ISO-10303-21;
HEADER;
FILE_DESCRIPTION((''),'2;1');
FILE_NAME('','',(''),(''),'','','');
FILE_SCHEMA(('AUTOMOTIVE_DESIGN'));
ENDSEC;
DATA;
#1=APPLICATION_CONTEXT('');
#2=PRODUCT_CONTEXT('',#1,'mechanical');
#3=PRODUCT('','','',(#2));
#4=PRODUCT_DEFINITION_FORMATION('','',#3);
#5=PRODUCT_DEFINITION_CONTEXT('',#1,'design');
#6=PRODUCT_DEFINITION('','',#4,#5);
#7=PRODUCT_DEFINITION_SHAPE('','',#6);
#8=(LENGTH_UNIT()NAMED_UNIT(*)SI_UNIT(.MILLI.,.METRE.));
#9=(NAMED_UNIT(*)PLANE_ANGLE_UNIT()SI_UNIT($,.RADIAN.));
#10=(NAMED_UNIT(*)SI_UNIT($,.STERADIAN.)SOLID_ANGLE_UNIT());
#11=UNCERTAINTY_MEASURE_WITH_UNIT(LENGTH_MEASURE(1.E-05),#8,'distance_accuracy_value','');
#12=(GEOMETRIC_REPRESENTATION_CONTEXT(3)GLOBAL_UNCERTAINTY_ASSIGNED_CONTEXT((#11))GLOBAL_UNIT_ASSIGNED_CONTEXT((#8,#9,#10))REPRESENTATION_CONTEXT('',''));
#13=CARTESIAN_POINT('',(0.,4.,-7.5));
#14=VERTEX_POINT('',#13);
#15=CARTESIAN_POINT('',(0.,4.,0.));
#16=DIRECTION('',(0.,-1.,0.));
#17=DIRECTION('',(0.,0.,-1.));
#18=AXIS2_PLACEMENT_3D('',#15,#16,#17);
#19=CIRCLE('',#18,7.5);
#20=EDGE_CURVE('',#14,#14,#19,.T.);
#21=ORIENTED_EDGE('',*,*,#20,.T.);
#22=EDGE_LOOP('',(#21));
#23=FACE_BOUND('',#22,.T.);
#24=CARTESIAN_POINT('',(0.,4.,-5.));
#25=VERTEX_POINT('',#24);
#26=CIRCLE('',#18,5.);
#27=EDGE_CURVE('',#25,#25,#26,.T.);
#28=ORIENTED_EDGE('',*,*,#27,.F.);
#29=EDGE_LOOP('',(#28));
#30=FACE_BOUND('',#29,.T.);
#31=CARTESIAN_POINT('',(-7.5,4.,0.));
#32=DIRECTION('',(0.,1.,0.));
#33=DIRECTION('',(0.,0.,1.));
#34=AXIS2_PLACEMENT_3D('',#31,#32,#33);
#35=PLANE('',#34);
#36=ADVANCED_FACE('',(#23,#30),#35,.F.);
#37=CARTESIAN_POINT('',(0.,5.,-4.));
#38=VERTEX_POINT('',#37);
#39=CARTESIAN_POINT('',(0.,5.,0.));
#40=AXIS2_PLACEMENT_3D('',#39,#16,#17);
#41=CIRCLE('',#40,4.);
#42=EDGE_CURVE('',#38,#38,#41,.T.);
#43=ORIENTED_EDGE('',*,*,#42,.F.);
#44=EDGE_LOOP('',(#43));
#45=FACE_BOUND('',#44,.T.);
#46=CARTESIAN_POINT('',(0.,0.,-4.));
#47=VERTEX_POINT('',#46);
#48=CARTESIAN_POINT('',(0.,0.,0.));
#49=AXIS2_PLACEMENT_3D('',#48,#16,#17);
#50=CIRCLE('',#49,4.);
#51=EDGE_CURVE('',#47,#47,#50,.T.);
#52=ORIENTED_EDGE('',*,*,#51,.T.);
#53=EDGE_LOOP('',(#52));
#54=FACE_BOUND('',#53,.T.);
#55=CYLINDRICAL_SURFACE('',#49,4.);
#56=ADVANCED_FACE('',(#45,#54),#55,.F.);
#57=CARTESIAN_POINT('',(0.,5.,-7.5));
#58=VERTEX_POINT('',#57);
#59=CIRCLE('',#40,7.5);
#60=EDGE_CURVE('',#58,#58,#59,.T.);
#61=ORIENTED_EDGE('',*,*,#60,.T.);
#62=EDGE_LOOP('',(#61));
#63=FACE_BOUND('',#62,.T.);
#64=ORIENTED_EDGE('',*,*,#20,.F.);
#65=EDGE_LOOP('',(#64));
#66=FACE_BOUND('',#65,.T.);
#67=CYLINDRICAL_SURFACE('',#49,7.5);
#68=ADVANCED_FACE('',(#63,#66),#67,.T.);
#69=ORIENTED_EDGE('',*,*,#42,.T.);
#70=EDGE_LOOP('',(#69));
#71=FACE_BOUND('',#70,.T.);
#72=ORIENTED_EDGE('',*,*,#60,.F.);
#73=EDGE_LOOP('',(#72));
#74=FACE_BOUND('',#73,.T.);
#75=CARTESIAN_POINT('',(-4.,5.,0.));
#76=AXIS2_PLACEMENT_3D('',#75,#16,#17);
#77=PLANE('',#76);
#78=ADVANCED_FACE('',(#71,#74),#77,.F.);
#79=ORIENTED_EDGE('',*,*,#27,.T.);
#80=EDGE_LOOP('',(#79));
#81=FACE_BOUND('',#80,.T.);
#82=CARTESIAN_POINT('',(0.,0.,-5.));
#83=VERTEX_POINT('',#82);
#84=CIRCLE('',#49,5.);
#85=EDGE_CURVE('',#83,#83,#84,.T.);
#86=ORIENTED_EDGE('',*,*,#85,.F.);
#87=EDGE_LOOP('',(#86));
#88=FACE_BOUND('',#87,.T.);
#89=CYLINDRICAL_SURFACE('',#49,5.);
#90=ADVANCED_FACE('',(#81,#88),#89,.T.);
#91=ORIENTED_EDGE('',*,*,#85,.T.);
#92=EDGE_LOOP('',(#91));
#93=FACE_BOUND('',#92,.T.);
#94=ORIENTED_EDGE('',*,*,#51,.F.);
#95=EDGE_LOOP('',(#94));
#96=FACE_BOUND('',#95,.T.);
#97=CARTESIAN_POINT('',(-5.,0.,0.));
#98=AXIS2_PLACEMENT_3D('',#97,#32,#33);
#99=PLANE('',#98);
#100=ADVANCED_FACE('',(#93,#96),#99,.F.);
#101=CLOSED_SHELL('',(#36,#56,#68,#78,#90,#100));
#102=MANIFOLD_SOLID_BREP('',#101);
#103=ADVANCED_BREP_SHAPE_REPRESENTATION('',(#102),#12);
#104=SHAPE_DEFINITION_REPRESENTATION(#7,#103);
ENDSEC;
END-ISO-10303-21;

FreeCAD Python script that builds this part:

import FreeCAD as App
import Part
import Sketcher
from FreeCAD import Vector

doc = App.newDocument("Part")
body = doc.addObject("PartDesign::Body", "Body")

# Sketch on XY plane
sketch1 = doc.addObject("Sketcher::SketchObject", "Sketch")
body.addObject(sketch1)
sketch1.AttachmentSupport = (doc.XY_Plane, [""])
sketch1.MapMode = "FlatFace"
sketch1.addGeometry([
    Part.LineSegment(Vector(-4, 5, 0), Vector(-7.5, 5, 0)),  # 0
    Part.LineSegment(Vector(-7.5, 5, 0), Vector(-7.5, 4, 0)),  # 1
    Part.LineSegment(Vector(-7.5, 4, 0), Vector(-5, 4, 0)),  # 2
    Part.LineSegment(Vector(-5, 4, 0), Vector(-5, 0, 0)),  # 3
    Part.LineSegment(Vector(-5, 0, 0), Vector(-4, 0, 0)),  # 4
    Part.LineSegment(Vector(-4, 0, 0), Vector(-4, 5, 0)),  # 5
], False)
sketch1.addConstraint([
    Sketcher.Constraint("Coincident", 0, 2, 1, 1),
    Sketcher.Constraint("Coincident", 1, 2, 2, 1),
    Sketcher.Constraint("Coincident", 2, 2, 3, 1),
    Sketcher.Constraint("Coincident", 3, 2, 4, 1),
    Sketcher.Constraint("Coincident", 4, 2, 5, 1),
    Sketcher.Constraint("Coincident", 5, 2, 0, 1),
    Sketcher.Constraint("Horizontal", 0),
    Sketcher.Constraint("Vertical", 1),
    Sketcher.Constraint("Horizontal", 2),
    Sketcher.Constraint("Vertical", 3),
    Sketcher.Constraint("Horizontal", 4),
    Sketcher.Constraint("Vertical", 5),
    Sketcher.Constraint("PointOnObject", 3, 2, -1),
    Sketcher.Constraint("Equal", 4, 1),
    Sketcher.Constraint("DistanceX", 4, 1, 4, 2, 1.0),
    Sketcher.Constraint("DistanceY", 3, 2, 3, 1, 4.0),
    Sketcher.Constraint("DistanceX", 0, 2, 0, 1, 3.5),
    Sketcher.Constraint("DistanceX", 2, 2, -1, 1, 5.0),
])
revolution = doc.addObject("PartDesign::Revolution", "Revolution")
body.addObject(revolution)
revolution.Profile = sketch1
revolution.ReferenceAxis = (sketch1, ["V_Axis"])
revolution.Angle = 360

doc.recompute()
